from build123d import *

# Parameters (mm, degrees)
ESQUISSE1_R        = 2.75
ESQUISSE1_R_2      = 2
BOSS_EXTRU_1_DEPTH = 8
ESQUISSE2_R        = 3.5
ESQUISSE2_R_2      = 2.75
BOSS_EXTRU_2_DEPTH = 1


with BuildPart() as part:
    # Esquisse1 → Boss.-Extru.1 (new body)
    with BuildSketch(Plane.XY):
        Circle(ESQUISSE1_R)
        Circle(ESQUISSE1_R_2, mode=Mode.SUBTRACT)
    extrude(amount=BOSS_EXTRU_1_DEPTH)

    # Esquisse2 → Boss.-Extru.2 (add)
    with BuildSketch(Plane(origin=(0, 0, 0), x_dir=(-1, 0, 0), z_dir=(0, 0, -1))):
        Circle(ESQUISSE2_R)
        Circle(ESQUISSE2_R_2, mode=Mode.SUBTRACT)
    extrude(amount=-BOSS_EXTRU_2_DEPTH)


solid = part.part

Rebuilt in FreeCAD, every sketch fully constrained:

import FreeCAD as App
import Part
import Sketcher

V = App.Vector

doc = App.newDocument("Part")
body = doc.addObject("PartDesign::Body", "Body")

# Sketch on XY plane
sketch1 = body.newObject("Sketcher::SketchObject", "Sketch")
sketch1.AttachmentSupport = (doc.getObject("XY_Plane"), [""])
sketch1.MapMode = "FlatFace"
sketch1.addGeometry([
    Part.Circle(V(0, 0, 0), V(0, 0, 1), 2.8),
    Part.Circle(V(0, 0, 0), V(0, 0, 1), 2),
], False)
sketch1.addConstraint([
    Sketcher.Constraint("Coincident", 0, 3, -1, 1),
    Sketcher.Constraint("Coincident", 1, 3, -1, 1),
    Sketcher.Constraint("Diameter", 1, 4.0),
    Sketcher.Constraint("Diameter", 0, 5.5),
])
pad1 = body.newObject("PartDesign::Pad", "Pad")
pad1.Profile = sketch1
pad1.Length = 8

# Sketch on XY plane
sketch2 = body.newObject("Sketcher::SketchObject", "Sketch001")
sketch2.AttachmentSupport = (doc.getObject("XY_Plane"), [""])
sketch2.MapMode = "FlatFace"
sketch2.addGeometry([
    Part.Circle(V(0, 0, 0), V(0, 0, 1), 3.5),
    Part.Circle(V(0, 0, 0), V(0, 0, 1), 2.8),
], False)
sketch2.addConstraint([
    Sketcher.Constraint("Coincident", 0, 3, -1, 1),
    Sketcher.Constraint("Coincident", 1, 3, -1, 1),
    Sketcher.Constraint("Diameter", 0, 7.0),
    Sketcher.Constraint("Diameter", 1, 5.5),
])
pad2 = body.newObject("PartDesign::Pad", "Pad001")
pad2.Profile = sketch2
pad2.Length = 1

doc.recompute()
